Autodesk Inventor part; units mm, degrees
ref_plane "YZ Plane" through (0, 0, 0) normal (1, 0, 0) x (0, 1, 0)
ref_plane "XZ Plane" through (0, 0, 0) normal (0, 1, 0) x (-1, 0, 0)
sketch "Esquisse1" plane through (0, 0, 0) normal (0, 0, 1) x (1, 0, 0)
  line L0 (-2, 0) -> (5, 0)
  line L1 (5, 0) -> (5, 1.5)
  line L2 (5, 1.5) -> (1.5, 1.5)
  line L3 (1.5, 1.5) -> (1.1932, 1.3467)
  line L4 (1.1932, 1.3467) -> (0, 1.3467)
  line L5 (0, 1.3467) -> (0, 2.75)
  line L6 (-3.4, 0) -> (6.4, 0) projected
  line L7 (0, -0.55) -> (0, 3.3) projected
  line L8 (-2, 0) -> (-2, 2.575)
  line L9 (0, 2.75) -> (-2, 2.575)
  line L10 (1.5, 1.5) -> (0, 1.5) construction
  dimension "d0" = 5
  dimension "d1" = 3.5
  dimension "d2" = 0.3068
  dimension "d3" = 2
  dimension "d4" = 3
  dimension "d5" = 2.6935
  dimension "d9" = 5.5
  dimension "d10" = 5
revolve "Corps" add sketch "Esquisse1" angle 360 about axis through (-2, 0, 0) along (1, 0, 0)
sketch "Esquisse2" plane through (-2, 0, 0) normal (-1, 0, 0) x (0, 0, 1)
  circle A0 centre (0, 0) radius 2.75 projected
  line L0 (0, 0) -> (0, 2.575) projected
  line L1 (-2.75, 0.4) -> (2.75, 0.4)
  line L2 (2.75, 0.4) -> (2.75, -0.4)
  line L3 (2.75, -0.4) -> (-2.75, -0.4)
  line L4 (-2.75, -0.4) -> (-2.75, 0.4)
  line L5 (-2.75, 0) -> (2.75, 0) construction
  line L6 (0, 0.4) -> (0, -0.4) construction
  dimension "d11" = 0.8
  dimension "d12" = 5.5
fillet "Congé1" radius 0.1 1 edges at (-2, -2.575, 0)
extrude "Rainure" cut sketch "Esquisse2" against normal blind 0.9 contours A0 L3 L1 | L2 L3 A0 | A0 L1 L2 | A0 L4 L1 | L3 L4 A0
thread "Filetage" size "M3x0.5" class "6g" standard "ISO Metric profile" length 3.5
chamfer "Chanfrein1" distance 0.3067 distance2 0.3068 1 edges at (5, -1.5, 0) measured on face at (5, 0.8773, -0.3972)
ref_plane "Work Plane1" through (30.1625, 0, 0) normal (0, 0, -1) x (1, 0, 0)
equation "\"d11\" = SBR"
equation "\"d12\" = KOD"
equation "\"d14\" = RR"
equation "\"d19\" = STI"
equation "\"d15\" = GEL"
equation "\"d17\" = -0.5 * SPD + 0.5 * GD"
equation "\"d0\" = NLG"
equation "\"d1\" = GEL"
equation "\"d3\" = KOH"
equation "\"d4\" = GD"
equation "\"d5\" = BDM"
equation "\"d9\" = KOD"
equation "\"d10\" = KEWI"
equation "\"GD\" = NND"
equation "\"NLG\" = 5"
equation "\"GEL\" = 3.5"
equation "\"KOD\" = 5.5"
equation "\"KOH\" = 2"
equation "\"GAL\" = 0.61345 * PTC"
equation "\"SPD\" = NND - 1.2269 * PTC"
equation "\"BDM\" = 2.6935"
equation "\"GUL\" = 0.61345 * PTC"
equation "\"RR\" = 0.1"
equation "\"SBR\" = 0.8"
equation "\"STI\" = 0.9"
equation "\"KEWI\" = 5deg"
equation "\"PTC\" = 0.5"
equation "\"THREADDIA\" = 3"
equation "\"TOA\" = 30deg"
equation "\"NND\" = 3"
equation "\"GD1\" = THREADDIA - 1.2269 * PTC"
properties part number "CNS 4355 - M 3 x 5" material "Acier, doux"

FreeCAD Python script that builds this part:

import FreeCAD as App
import Part
import Sketcher
Q = App.Units.Quantity


def edges_at(feature, points):
    """Names of the edges that pass closest to the given points."""
    edges = feature.Shape.Edges
    near = lambda p: min(range(len(edges)), key=lambda i: edges[i].distToShape(Part.Vertex(*p))[0])
    return sorted({f"Edge{near(p) + 1}" for p in points})


def add_polygon(sketch, points):
    """Adds a closed chain of lines whose ends are joined by coincident constraints."""
    first, n = sketch.GeometryCount, len(points)
    for a, b in zip(points, points[1:] + points[:1]):
        sketch.addGeometry(Part.LineSegment(App.Vector(*a, 0), App.Vector(*b, 0)), False)
    for i in range(n):
        sketch.addConstraint(Sketcher.Constraint("Coincident", first + i, 2, first + (i + 1) % n, 1))

doc = App.newDocument("Part")
body = doc.addObject("PartDesign::Body", "Body")

sketch1 = doc.addObject("Sketcher::SketchObject", "Sketch")
body.addObject(sketch1)
sketch1.AttachmentSupport = (doc.XY_Plane, [""])
sketch1.MapMode = "FlatFace"
add_polygon(sketch1, [(-2, 2.58), (-2, 0), (5, 0), (5, 1.5), (1.5, 1.5), (1.19, 1.35), (0, 1.35), (0, 2.75)])
sketch1.addConstraint([
    Sketcher.Constraint("Vertical", 0),
    Sketcher.Constraint("Horizontal", 1),
    Sketcher.Constraint("Vertical", 2),
    Sketcher.Constraint("Horizontal", 3),
    Sketcher.Constraint("Horizontal", 5),
    Sketcher.Constraint("Vertical", 6),
    Sketcher.Constraint("PointOnObject", 0, 2, -1),
    Sketcher.Constraint("PointOnObject", 5, 2, -2),
    Sketcher.Constraint("DistanceX", 3, 2, 3, 1, 3.5),
    Sketcher.Constraint("DistanceX", 0, 2, -1, 1, 2.0),
    Sketcher.Constraint("DistanceX", -1, 1, 1, 2, 5.0),
    Sketcher.Constraint("Angle", 7, Q("-174.9994 deg")),
    Sketcher.Constraint("DistanceY", 2, 1, 2, 2, 1.5),
    Sketcher.Constraint("Angle", 4, Q("-153.45 deg")),
    Sketcher.Constraint("DistanceX", 4, 2, 3, 2, 0.3068),
    Sketcher.Constraint("DistanceY", 0, 2, 0, 1, 2.575),
])
revolution = doc.addObject("PartDesign::Revolution", "Revolution")
body.addObject(revolution)
revolution.Profile = sketch1
revolution.ReferenceAxis = (sketch1, ["H_Axis"])
revolution.Angle = 360
doc.recompute()

fillet = doc.addObject("PartDesign::Fillet", "Fillet")
body.addObject(fillet)
fillet.Base = (revolution, edges_at(revolution, [(-2, -2.575, 0)]))
fillet.Radius = 0.1

sketch2 = doc.addObject("Sketcher::SketchObject", "Sketch001")
body.addObject(sketch2)
sketch2.AttachmentSupport = (doc.YZ_Plane, [""])
sketch2.MapMode = "FlatFace"
sketch2.AttachmentOffset = App.Placement(App.Vector(0, 0, -2), App.Rotation())
add_polygon(sketch2, [(-0.4, 2.8), (0.4, 2.8), (0.4, -2.8), (-0.4, -2.8)])
sketch2.addConstraint([
    Sketcher.Constraint("Horizontal", 0),
    Sketcher.Constraint("Vertical", 1),
    Sketcher.Constraint("Horizontal", 2),
    Sketcher.Constraint("Vertical", 3),
    Sketcher.Constraint("Symmetric", 0, 2, 2, 2, -1, 1),
    Sketcher.Constraint("DistanceX", 0, 1, 0, 2, 0.8),
    Sketcher.Constraint("DistanceY", 1, 2, 1, 1, 5.5),
])
pocket1 = doc.addObject("PartDesign::Pocket", "Pocket")
body.addObject(pocket1)
pocket1.Profile = sketch2
pocket1.Length = 0.9
pocket1.Reversed = True
doc.recompute()

chamfer = doc.addObject("PartDesign::Chamfer", "Chamfer")
body.addObject(chamfer)
chamfer.Base = (pocket1, edges_at(pocket1, [(5, -1.5, 0)]))
chamfer.ChamferType = "Two distances"
chamfer.Size = 0.3067
chamfer.Size2 = 0.3068

doc.recompute()
